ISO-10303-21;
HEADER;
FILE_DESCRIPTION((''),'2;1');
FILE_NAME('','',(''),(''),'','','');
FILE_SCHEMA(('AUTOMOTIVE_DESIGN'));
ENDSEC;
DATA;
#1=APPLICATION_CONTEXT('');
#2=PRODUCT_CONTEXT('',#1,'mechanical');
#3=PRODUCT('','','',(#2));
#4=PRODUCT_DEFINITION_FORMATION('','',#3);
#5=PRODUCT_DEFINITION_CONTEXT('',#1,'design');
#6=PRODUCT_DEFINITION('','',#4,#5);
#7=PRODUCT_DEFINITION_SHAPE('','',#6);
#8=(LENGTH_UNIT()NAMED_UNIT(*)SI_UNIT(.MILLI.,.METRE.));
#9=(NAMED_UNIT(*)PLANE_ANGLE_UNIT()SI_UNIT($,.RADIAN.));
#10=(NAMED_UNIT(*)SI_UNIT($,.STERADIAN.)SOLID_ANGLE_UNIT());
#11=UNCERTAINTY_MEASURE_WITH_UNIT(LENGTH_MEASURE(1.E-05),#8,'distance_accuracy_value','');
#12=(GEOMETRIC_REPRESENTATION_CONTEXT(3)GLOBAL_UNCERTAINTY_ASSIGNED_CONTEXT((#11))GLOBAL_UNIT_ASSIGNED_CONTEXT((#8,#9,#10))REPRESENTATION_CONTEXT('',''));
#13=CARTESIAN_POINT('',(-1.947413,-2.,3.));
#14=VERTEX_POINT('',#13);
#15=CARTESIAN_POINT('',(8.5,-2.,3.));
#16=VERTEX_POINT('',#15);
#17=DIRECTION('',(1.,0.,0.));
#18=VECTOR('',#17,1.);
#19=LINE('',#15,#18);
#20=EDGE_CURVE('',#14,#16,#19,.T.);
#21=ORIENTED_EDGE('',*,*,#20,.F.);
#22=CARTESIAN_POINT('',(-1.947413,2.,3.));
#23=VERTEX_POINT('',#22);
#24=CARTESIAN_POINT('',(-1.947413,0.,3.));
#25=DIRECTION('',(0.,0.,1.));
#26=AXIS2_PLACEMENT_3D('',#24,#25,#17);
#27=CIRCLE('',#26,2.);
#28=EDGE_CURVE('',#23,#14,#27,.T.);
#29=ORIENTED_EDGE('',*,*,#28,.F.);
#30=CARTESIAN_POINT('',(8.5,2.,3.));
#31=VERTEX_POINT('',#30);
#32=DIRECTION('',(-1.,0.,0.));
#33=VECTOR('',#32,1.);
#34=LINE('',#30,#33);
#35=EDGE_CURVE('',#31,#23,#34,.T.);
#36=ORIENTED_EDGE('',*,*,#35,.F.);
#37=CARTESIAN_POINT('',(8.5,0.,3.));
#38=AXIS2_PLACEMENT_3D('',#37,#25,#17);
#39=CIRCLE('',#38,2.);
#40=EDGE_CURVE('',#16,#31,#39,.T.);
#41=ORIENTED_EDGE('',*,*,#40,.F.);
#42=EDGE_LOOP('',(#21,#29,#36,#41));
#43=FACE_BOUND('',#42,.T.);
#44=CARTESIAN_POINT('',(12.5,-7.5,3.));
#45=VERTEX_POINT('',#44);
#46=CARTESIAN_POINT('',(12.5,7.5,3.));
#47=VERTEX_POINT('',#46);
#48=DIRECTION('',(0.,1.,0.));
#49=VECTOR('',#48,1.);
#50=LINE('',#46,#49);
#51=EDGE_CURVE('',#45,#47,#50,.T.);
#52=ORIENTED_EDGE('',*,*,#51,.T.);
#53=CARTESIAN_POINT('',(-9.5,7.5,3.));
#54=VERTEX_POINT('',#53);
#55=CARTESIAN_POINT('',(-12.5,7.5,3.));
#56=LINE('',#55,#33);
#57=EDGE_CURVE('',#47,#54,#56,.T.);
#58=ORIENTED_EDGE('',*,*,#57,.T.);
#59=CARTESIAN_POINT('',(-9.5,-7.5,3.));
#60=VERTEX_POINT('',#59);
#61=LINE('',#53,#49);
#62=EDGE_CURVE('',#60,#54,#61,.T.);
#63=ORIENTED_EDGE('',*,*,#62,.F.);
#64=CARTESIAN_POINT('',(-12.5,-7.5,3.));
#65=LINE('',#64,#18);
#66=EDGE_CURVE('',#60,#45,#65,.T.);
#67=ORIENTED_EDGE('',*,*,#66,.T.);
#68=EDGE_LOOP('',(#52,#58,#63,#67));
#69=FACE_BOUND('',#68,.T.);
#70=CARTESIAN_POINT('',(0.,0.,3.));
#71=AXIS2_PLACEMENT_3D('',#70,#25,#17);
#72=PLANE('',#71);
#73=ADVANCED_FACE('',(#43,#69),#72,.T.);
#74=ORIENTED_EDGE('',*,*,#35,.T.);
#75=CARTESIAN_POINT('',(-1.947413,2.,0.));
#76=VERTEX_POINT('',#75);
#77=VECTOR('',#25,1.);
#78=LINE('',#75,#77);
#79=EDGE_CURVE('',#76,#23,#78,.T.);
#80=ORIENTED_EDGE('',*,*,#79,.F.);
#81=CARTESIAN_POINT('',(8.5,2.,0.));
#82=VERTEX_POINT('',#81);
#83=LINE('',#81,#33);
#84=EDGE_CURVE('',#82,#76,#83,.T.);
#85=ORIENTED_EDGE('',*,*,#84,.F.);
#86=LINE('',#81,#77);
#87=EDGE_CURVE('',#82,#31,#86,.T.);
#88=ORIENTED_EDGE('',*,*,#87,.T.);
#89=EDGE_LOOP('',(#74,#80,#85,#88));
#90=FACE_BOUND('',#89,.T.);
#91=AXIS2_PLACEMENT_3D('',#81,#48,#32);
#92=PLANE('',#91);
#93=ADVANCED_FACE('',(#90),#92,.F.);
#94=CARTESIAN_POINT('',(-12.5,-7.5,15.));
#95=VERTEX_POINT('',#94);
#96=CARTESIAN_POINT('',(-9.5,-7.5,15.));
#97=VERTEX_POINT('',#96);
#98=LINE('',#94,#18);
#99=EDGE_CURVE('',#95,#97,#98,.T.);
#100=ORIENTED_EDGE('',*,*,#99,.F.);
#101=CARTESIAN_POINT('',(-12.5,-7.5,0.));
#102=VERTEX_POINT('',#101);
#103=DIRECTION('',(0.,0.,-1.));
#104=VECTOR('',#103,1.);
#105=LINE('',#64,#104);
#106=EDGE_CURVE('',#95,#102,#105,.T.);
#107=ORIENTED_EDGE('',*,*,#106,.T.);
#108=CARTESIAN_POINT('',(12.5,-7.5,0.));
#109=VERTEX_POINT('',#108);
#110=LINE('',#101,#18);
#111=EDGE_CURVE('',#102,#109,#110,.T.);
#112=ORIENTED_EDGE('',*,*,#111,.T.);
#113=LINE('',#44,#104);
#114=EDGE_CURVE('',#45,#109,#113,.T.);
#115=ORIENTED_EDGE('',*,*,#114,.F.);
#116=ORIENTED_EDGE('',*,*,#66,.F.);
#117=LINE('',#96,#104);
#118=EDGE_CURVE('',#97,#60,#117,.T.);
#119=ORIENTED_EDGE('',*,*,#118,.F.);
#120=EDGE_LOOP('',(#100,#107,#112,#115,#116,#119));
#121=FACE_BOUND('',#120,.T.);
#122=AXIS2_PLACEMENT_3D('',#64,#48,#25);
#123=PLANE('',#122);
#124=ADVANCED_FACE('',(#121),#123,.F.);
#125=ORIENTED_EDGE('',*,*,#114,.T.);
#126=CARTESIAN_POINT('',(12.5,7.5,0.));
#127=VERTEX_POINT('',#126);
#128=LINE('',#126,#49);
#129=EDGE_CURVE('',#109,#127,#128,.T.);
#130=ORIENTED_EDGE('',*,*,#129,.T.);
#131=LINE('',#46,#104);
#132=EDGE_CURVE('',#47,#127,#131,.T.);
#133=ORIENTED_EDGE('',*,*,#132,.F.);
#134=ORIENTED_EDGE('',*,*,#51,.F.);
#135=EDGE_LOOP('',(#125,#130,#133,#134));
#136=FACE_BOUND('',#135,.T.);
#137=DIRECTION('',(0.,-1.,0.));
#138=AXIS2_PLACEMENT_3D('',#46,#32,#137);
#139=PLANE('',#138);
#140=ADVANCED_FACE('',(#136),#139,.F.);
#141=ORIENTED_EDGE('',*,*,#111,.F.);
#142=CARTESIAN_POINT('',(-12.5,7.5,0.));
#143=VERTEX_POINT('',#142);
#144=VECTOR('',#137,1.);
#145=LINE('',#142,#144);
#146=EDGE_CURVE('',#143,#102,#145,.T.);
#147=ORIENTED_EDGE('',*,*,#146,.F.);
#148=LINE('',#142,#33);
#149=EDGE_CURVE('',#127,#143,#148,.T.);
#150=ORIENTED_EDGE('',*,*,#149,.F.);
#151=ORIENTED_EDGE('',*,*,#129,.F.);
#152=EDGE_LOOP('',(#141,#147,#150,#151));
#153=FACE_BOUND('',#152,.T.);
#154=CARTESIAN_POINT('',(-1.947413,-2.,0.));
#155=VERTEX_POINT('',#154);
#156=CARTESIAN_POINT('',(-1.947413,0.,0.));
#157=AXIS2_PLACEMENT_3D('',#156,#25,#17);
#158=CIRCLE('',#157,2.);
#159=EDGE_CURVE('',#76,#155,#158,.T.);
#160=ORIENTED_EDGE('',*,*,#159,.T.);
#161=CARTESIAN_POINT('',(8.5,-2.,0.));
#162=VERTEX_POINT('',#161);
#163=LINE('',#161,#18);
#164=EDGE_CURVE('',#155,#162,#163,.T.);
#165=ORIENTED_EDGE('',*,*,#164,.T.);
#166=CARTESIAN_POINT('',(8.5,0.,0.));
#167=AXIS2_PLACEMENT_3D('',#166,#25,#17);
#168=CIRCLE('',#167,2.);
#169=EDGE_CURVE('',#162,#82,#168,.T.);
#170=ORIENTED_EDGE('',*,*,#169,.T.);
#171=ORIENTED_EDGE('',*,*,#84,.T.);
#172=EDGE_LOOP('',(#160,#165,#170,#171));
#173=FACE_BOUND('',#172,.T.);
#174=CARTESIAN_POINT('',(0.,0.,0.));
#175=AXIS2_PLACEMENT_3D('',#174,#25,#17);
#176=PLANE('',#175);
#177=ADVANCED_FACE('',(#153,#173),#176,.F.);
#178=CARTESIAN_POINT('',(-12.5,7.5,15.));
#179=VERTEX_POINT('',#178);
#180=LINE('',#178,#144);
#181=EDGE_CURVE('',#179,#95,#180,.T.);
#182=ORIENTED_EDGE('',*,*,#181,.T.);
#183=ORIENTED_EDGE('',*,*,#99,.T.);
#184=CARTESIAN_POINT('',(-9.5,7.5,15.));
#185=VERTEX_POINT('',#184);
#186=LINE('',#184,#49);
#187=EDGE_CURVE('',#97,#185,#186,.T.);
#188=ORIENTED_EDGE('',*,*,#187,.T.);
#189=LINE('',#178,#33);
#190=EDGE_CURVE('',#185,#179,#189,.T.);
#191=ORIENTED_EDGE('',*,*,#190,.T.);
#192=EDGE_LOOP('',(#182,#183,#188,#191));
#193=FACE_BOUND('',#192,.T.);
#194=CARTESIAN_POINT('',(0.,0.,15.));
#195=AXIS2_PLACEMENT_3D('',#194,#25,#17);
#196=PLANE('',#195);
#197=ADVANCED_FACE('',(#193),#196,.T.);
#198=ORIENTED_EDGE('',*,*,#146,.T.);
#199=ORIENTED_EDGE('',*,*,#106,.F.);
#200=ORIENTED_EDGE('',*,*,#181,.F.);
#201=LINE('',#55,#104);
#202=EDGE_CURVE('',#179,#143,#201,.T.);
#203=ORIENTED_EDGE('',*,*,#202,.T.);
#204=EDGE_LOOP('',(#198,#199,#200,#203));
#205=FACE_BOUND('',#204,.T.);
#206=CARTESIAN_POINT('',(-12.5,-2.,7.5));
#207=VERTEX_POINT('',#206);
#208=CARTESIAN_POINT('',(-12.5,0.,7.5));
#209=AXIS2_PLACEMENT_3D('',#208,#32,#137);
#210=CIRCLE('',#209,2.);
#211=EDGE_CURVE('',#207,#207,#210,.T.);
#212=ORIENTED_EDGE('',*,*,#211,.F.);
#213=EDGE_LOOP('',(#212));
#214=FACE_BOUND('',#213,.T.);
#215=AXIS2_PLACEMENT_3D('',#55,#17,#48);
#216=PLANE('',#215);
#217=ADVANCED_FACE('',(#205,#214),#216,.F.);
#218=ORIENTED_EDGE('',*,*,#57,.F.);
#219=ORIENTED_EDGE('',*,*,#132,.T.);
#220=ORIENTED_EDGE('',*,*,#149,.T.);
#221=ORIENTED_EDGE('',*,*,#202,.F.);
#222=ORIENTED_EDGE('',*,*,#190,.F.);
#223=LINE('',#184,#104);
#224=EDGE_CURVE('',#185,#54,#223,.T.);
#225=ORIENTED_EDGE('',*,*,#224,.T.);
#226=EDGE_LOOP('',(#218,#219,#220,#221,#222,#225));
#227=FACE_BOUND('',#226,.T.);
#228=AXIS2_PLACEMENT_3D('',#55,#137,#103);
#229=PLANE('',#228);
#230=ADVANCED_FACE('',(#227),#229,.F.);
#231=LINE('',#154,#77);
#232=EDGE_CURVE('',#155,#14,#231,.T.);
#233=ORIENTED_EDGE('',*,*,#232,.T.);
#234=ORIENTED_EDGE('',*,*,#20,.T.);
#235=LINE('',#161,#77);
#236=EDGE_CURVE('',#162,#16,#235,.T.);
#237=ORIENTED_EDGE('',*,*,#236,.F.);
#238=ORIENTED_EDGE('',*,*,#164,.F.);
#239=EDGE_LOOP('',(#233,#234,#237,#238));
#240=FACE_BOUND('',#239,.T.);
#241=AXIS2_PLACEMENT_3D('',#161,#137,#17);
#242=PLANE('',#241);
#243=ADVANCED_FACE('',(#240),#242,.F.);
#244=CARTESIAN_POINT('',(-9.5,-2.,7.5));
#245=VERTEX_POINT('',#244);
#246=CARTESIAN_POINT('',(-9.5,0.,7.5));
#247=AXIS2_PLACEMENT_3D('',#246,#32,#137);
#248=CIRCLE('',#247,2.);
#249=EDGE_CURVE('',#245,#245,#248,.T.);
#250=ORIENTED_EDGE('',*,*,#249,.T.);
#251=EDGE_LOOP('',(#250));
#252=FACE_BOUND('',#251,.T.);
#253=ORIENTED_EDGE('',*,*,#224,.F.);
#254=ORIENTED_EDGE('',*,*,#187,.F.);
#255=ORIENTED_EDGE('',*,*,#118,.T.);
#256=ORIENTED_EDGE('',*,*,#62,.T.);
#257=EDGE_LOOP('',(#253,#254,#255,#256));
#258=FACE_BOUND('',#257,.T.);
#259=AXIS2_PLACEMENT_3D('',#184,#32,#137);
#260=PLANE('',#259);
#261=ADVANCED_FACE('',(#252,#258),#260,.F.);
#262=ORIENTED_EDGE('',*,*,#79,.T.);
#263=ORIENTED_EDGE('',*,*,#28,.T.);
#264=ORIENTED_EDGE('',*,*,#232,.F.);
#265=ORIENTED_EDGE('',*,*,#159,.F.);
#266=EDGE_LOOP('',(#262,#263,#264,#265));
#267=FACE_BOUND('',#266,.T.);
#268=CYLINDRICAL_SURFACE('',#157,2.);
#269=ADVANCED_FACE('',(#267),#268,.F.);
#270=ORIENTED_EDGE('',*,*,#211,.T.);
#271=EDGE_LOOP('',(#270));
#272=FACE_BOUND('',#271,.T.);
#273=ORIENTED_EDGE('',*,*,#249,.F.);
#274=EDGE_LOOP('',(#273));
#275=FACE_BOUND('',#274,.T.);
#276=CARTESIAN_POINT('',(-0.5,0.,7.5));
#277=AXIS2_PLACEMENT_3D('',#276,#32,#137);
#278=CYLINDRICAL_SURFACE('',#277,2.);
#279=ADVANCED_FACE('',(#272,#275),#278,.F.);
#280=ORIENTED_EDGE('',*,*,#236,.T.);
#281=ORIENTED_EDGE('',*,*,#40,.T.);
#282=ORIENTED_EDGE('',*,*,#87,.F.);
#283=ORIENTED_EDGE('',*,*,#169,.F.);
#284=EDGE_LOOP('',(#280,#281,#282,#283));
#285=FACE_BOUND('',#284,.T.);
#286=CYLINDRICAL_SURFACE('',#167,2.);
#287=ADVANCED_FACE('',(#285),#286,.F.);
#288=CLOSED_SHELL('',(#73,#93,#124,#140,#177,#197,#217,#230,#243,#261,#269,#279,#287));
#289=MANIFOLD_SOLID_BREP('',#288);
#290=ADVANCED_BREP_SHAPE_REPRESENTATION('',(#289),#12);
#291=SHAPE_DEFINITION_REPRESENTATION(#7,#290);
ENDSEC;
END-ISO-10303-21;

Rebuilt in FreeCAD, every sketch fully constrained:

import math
import FreeCAD as App
import Part
import Sketcher


def add_polygon(sketch, points):
    """Adds a closed chain of lines whose ends are joined by coincident constraints."""
    first, n = sketch.GeometryCount, len(points)
    for a, b in zip(points, points[1:] + points[:1]):
        sketch.addGeometry(Part.LineSegment(App.Vector(*a, 0), App.Vector(*b, 0)), False)
    for i in range(n):
        sketch.addConstraint(Sketcher.Constraint("Coincident", first + i, 2, first + (i + 1) % n, 1))

doc = App.newDocument("Part")
body = doc.addObject("PartDesign::Body", "Body")

# Sketch on XY plane
sketch1 = body.newObject("Sketcher::SketchObject", "Sketch")
sketch1.AttachmentSupport = (doc.getObject("XY_Plane"), [""])
sketch1.MapMode = "FlatFace"
add_polygon(sketch1, [(-12, 8), (-12, -8), (12, -8), (12, 8)])  # lines 0-3
sketch1.addConstraint([
    Sketcher.Constraint("Vertical", 0),
    Sketcher.Constraint("Horizontal", 1),
    Sketcher.Constraint("Vertical", 2),
    Sketcher.Constraint("Horizontal", 3),
    Sketcher.Constraint("Symmetric", 0, 2, 2, 2, -1, 1),
    Sketcher.Constraint("DistanceX", 1, 1, 1, 2, 25.0),
    Sketcher.Constraint("DistanceY", 0, 2, 0, 1, 15.0),
])
pad1 = body.newObject("PartDesign::Pad", "Pad")
pad1.Profile = sketch1
pad1.Length = 3

# Sketch on XY plane
sketch2 = body.newObject("Sketcher::SketchObject", "Sketch001")
sketch2.AttachmentSupport = (doc.getObject("XY_Plane"), [""])
sketch2.MapMode = "FlatFace"
sketch2.AttachmentOffset = App.Placement(App.Vector(0, 0, 3), App.Rotation())
sketch2.addGeometry([
    Part.LineSegment(App.Vector(-1.9, -2, 0), App.Vector(8.5, -2, 0)),
    Part.ArcOfCircle(Part.Circle(App.Vector(8.5, 0, 0), App.Vector(0, 0, 1), 2), math.radians(-90), math.radians(90)),
    Part.LineSegment(App.Vector(8.5, 2, 0), App.Vector(-1.9, 2, 0)),
    Part.ArcOfCircle(Part.Circle(App.Vector(-1.9, 0, 0), App.Vector(0, 0, 1), 2), math.radians(90), math.radians(270)),
], False)
sketch2.addConstraint([
    Sketcher.Constraint("Tangent", 0, 2, 1, 1),
    Sketcher.Constraint("Tangent", 1, 2, 2, 1),
    Sketcher.Constraint("Tangent", 2, 2, 3, 1),
    Sketcher.Constraint("Tangent", 3, 2, 0, 1),
    Sketcher.Constraint("Horizontal", 0),
    Sketcher.Constraint("Horizontal", 2),
    Sketcher.Constraint("PointOnObject", 1, 3, -1),
    Sketcher.Constraint("Radius", 1, 2.0),
    Sketcher.Constraint("DistanceX", -1, 1, 1, 3, 8.5),
    Sketcher.Constraint("DistanceX", 0, 1, 0, 2, 10.447413),
])
pocket1 = body.newObject("PartDesign::Pocket", "Pocket")
pocket1.Profile = sketch2
pocket1.Length = 3

# Sketch on XY plane
sketch3 = body.newObject("Sketcher::SketchObject", "Sketch002")
sketch3.AttachmentSupport = (doc.getObject("XY_Plane"), [""])
sketch3.MapMode = "FlatFace"
sketch3.AttachmentOffset = App.Placement(App.Vector(0, 0, 3), App.Rotation())
add_polygon(sketch3, [(-12.5, 7.5), (-12.5, -7.5), (-9.5, -7.5), (-9.5, 7.5)])  # lines 0-3
sketch3.addConstraint([
    Sketcher.Constraint("Vertical", 0),
    Sketcher.Constraint("Horizontal", 1),
    Sketcher.Constraint("Vertical", 2),
    Sketcher.Constraint("Horizontal", 3),
    Sketcher.Constraint("DistanceX", 1, 1, 1, 2, 3.0),
    Sketcher.Constraint("DistanceY", 0, 2, 0, 1, 15.0),
    Sketcher.Constraint("DistanceX", 0, 2, -1, 1, 12.5),
    Sketcher.Constraint("DistanceY", 0, 2, -1, 1, 7.5),
])
pad2 = body.newObject("PartDesign::Pad", "Pad001")
pad2.Profile = sketch3
pad2.Length = 12

# Sketch on YZ plane
sketch4 = body.newObject("Sketcher::SketchObject", "Sketch003")
sketch4.AttachmentSupport = (doc.getObject("YZ_Plane"), [""])
sketch4.MapMode = "FlatFace"
sketch4.AttachmentOffset = App.Placement(App.Vector(0, 0, -12.5), App.Rotation())
sketch4.addGeometry(Part.Circle(App.Vector(0, 7.5, 0), App.Vector(0, 0, 1), 2), False)
sketch4.addConstraint([
    Sketcher.Constraint("PointOnObject", 0, 3, -2),
    Sketcher.Constraint("Diameter", 0, 4.0),
    Sketcher.Constraint("DistanceY", -1, 1, 0, 3, 7.5),
])
pocket2 = body.newObject("PartDesign::Pocket", "Pocket001")
pocket2.Profile = sketch4
pocket2.Length = 12
pocket2.Reversed = True

doc.recompute()
